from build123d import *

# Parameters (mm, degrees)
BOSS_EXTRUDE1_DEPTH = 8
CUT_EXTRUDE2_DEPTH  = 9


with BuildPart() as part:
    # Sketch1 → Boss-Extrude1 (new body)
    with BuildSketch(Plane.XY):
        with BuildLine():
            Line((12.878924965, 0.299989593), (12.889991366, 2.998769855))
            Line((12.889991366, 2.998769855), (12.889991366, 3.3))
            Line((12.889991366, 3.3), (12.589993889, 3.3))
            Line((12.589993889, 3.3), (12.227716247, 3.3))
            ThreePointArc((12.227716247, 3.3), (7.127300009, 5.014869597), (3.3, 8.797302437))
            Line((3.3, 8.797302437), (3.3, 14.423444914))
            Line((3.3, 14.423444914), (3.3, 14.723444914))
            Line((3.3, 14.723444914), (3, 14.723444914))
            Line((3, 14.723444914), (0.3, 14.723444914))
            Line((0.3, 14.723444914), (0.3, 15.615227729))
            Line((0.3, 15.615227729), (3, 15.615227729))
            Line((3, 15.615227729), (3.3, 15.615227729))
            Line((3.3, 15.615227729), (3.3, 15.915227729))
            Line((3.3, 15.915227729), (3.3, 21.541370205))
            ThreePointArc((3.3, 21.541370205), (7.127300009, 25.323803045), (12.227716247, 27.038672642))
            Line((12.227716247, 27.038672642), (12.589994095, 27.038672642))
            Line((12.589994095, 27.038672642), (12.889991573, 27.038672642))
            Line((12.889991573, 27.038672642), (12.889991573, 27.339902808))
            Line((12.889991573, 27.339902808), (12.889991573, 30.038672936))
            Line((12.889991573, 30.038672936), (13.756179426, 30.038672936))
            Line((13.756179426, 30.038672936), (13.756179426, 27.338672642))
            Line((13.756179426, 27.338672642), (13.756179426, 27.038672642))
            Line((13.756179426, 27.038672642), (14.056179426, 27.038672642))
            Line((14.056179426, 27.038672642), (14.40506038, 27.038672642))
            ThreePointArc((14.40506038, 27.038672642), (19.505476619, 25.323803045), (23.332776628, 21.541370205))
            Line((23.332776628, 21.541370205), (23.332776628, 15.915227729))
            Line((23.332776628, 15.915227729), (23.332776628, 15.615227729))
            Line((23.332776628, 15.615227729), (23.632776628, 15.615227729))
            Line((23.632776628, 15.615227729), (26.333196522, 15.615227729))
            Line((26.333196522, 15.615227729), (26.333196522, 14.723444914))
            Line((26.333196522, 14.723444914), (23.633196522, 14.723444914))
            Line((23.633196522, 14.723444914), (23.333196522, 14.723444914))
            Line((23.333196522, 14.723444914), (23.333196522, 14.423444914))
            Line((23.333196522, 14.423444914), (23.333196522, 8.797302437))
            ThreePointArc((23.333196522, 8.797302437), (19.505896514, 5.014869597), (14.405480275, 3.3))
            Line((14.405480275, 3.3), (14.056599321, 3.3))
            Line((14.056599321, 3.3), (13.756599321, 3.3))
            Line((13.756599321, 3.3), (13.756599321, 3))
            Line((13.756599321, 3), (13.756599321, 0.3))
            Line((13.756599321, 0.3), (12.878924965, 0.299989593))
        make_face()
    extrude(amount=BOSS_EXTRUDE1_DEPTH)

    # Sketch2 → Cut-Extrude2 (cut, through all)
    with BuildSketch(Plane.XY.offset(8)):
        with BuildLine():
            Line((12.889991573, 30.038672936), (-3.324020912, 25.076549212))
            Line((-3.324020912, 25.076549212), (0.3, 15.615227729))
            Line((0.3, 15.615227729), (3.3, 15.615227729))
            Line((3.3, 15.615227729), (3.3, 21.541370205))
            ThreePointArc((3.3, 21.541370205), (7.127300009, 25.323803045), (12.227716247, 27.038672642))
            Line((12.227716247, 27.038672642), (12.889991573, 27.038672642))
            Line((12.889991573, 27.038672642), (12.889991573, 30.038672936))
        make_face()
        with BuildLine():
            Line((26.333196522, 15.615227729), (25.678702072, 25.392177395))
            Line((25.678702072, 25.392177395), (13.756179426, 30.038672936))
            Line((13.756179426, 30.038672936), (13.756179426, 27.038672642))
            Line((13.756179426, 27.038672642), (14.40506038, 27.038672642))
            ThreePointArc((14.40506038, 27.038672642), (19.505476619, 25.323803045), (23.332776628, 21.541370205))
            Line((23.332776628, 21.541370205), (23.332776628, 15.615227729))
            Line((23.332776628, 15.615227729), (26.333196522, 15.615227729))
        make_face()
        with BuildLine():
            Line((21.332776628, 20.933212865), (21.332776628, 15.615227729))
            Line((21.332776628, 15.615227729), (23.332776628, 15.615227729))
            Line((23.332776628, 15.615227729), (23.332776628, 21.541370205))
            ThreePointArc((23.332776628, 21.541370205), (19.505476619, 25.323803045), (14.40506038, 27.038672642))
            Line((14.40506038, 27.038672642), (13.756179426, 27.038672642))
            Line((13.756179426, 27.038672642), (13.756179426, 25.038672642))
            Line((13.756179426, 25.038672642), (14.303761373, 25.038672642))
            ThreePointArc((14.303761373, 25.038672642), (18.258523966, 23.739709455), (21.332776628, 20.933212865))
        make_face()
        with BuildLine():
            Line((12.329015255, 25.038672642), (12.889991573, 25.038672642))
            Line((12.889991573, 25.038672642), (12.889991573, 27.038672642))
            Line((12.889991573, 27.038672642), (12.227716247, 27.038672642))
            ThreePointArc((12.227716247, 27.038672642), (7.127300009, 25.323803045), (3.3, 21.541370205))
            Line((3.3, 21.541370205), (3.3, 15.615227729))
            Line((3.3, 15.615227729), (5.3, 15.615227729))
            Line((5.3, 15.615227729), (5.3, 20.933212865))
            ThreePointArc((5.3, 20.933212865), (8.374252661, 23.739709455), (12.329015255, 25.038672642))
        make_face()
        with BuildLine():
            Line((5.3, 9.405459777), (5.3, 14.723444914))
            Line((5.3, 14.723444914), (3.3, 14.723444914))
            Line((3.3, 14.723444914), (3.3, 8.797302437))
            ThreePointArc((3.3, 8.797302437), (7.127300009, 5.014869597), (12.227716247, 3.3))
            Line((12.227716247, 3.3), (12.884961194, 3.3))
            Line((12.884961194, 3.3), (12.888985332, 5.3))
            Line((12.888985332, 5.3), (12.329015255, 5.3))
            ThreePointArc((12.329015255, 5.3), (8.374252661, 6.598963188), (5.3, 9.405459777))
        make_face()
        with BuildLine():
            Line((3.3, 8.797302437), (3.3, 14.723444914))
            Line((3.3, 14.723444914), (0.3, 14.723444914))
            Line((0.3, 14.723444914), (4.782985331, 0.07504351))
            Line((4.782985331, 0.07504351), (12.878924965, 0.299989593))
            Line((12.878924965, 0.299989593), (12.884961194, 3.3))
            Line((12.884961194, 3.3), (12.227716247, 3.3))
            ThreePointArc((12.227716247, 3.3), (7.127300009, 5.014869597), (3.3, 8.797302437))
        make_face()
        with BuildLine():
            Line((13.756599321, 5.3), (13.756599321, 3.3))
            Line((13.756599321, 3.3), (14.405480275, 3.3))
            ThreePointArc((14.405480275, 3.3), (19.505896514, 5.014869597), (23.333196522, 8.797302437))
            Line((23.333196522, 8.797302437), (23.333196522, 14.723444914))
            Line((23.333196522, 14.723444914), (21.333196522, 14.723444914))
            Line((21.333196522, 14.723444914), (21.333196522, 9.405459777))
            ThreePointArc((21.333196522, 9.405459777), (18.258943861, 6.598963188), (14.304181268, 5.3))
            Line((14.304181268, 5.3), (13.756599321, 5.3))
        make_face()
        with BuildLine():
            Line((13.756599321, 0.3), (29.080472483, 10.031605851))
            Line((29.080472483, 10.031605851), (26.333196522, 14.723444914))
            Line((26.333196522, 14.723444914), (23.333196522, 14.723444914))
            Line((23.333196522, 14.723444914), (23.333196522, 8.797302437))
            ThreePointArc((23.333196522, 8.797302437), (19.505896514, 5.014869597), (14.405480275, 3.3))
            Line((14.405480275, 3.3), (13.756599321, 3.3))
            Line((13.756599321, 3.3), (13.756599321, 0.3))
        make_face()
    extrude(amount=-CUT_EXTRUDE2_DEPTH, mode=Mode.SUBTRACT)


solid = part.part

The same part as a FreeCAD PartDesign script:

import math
import FreeCAD as App
import Part
import Sketcher

doc = App.newDocument("Part")
body = doc.addObject("PartDesign::Body", "Body")

sketch1 = doc.addObject("Sketcher::SketchObject", "Sketch")
body.addObject(sketch1)
sketch1.AttachmentSupport = (doc.XY_Plane, [""])
sketch1.MapMode = "FlatFace"
sketch1.addGeometry([
    Part.LineSegment(App.Vector(12.89, 3, 0), App.Vector(12.88, 0.3, 0)),
    Part.LineSegment(App.Vector(12.88, 0.3, 0), App.Vector(13.76, 0.3, 0)),
    Part.LineSegment(App.Vector(13.76, 0.3, 0), App.Vector(13.76, 3.3, 0)),
    Part.LineSegment(App.Vector(13.76, 3.3, 0), App.Vector(14.41, 3.3, 0)),
    Part.ArcOfCircle(Part.Circle(App.Vector(13.25, 15.17, 0), App.Vector(0, 0, 1), 11.92), math.radians(-84), math.radians(-32)),
    Part.LineSegment(App.Vector(23.33, 8.8, 0), App.Vector(23.33, 14.72, 0)),
    Part.LineSegment(App.Vector(23.33, 14.72, 0), App.Vector(26.33, 14.72, 0)),
    Part.LineSegment(App.Vector(26.33, 14.72, 0), App.Vector(26.33, 15.62, 0)),
    Part.LineSegment(App.Vector(26.33, 15.62, 0), App.Vector(23.33, 15.62, 0)),
    Part.LineSegment(App.Vector(23.33, 15.62, 0), App.Vector(23.33, 21.54, 0)),
    Part.ArcOfCircle(Part.Circle(App.Vector(13.25, 15.17, 0), App.Vector(0, 0, 1), 11.92), math.radians(32), math.radians(84)),
    Part.LineSegment(App.Vector(14.41, 27.04, 0), App.Vector(13.76, 27.04, 0)),
    Part.LineSegment(App.Vector(13.76, 27.04, 0), App.Vector(13.76, 30.04, 0)),
    Part.LineSegment(App.Vector(13.76, 30.04, 0), App.Vector(12.89, 30.04, 0)),
    Part.LineSegment(App.Vector(12.89, 30.04, 0), App.Vector(12.89, 27.04, 0)),
    Part.LineSegment(App.Vector(12.89, 27.04, 0), App.Vector(12.23, 27.04, 0)),
    Part.ArcOfCircle(Part.Circle(App.Vector(13.38, 15.17, 0), App.Vector(0, 0, 1), 11.92), math.radians(96), math.radians(148)),
    Part.LineSegment(App.Vector(3.3, 21.54, 0), App.Vector(3.3, 15.62, 0)),
    Part.LineSegment(App.Vector(3.3, 15.62, 0), App.Vector(0.3, 15.62, 0)),
    Part.LineSegment(App.Vector(0.3, 15.62, 0), App.Vector(0.3, 14.72, 0)),
    Part.LineSegment(App.Vector(0.3, 14.72, 0), App.Vector(3.3, 14.72, 0)),
    Part.LineSegment(App.Vector(3.3, 14.72, 0), App.Vector(3.3, 8.8, 0)),
    Part.ArcOfCircle(Part.Circle(App.Vector(13.38, 15.17, 0), App.Vector(0, 0, 1), 11.92), math.radians(-148), math.radians(-96)),
    Part.LineSegment(App.Vector(12.23, 3.3, 0), App.Vector(12.89, 3.3, 0)),
    Part.LineSegment(App.Vector(12.89, 3.3, 0), App.Vector(12.89, 3, 0)),
], False)
sketch1.addConstraint([
    Sketcher.Constraint("Coincident", 0, 2, 1, 1),
    Sketcher.Constraint("Coincident", 1, 2, 2, 1),
    Sketcher.Constraint("Coincident", 2, 2, 3, 1),
    Sketcher.Constraint("Coincident", 3, 2, 4, 1),
    Sketcher.Constraint("Coincident", 4, 2, 5, 1),
    Sketcher.Constraint("Coincident", 5, 2, 6, 1),
    Sketcher.Constraint("Coincident", 6, 2, 7, 1),
    Sketcher.Constraint("Coincident", 7, 2, 8, 1),
    Sketcher.Constraint("Coincident", 8, 2, 9, 1),
    Sketcher.Constraint("Coincident", 9, 2, 10, 1),
    Sketcher.Constraint("Coincident", 10, 2, 11, 1),
    Sketcher.Constraint("Coincident", 11, 2, 12, 1),
    Sketcher.Constraint("Coincident", 12, 2, 13, 1),
    Sketcher.Constraint("Coincident", 13, 2, 14, 1),
    Sketcher.Constraint("Coincident", 14, 2, 15, 1),
    Sketcher.Constraint("Coincident", 15, 2, 16, 1),
    Sketcher.Constraint("Coincident", 16, 2, 17, 1),
    Sketcher.Constraint("Coincident", 17, 2, 18, 1),
    Sketcher.Constraint("Coincident", 18, 2, 19, 1),
    Sketcher.Constraint("Coincident", 19, 2, 20, 1),
    Sketcher.Constraint("Coincident", 20, 2, 21, 1),
    Sketcher.Constraint("Coincident", 21, 2, 22, 1),
    Sketcher.Constraint("Coincident", 22, 2, 23, 1),
    Sketcher.Constraint("Coincident", 23, 2, 24, 1),
    Sketcher.Constraint("Coincident", 24, 2, 0, 1),
    Sketcher.Constraint("Vertical", 2),
    Sketcher.Constraint("Horizontal", 3),
    Sketcher.Constraint("Vertical", 5),
    Sketcher.Constraint("Horizontal", 6),
    Sketcher.Constraint("Vertical", 7),
    Sketcher.Constraint("Horizontal", 8),
    Sketcher.Constraint("Vertical", 9),
    Sketcher.Constraint("Horizontal", 11),
    Sketcher.Constraint("Vertical", 12),
    Sketcher.Constraint("Horizontal", 13),
    Sketcher.Constraint("Vertical", 14),
    Sketcher.Constraint("Horizontal", 15),
    Sketcher.Constraint("Vertical", 17),
    Sketcher.Constraint("Horizontal", 18),
    Sketcher.Constraint("Vertical", 19),
    Sketcher.Constraint("Horizontal", 20),
    Sketcher.Constraint("Vertical", 21),
    Sketcher.Constraint("Horizontal", 23),
    Sketcher.Constraint("Vertical", 24),
    Sketcher.Constraint("Equal", 4, 10),
    Sketcher.Constraint("Equal", 10, 16),
    Sketcher.Constraint("Equal", 16, 22),
    Sketcher.Constraint("Horizontal", 10, 3, 16, 3),
    Sketcher.Constraint("Horizontal", 4, 3, 22, 3),
    Sketcher.Constraint("Horizontal", 11, 2, 14, 2),
    Sketcher.Constraint("Horizontal", 9, 2, 16, 2),
    Sketcher.Constraint("Horizontal", 8, 2, 17, 2),
    Sketcher.Constraint("Horizontal", 6, 2, 19, 2),
    Sketcher.Constraint("Horizontal", 4, 2, 21, 2),
    Sketcher.Constraint("Horizontal", 3, 2, 22, 2),
    Sketcher.Constraint("Vertical", 16, 3, 22, 3),
    Sketcher.Constraint("Vertical", 17, 2, 20, 2),
    Sketcher.Constraint("Vertical", 15, 2, 22, 2),
    Sketcher.Constraint("Vertical", 14, 2, 23, 2),
    Sketcher.Constraint("Equal", 3, 11),
    Sketcher.Constraint("Equal", 6, 18),
    Sketcher.Constraint("Equal", 20, 2),
    Sketcher.Constraint("Equal", 5, 9),
    Sketcher.Constraint("Equal", 2, 12),
    Sketcher.Constraint("DistanceX", 6, 1, 6, 2, 3.0),
    Sketcher.Constraint("Radius", 4, 11.924999),
    Sketcher.Constraint("DistanceY", -1, 1, 1, 2, 0.3),
    Sketcher.Constraint("DistanceX", -1, 1, 16, 2, 3.3),
    Sketcher.Constraint("DistanceX", 3, 1, 3, 2, 0.648881),
    Sketcher.Constraint("DistanceX", 8, 2, 8, 1, 3.00042),
    Sketcher.Constraint("DistanceY", 24, 2, 24, 1, 0.30123),
    Sketcher.Constraint("DistanceX", -1, 1, 1, 2, 13.756599),
    Sketcher.Constraint("DistanceX", 13, 2, 13, 1, 0.866188),
    Sketcher.Constraint("DistanceX", 15, 2, 15, 1, 0.662275),
    Sketcher.Constraint("DistanceY", 5, 1, 5, 2, 5.926142),
    Sketcher.Constraint("DistanceY", 7, 1, 7, 2, 0.891783),
    Sketcher.Constraint("DistanceY", -1, 1, 0, 2, 0.29999),
    Sketcher.Constraint("DistanceY", -1, 1, 9, 2, 21.54137),
    Sketcher.Constraint("DistanceX", 0, 2, 4, 3, 0.374369),
])
pad1 = doc.addObject("PartDesign::Pad", "Pad")
body.addObject(pad1)
pad1.Profile = sketch1
pad1.Length = 8

sketch2 = doc.addObject("Sketcher::SketchObject", "Sketch001")
body.addObject(sketch2)
sketch2.AttachmentSupport = (doc.XY_Plane, [""])
sketch2.MapMode = "FlatFace"
sketch2.AttachmentOffset = App.Placement(App.Vector(0, 0, 8), App.Rotation())
sketch2.addGeometry([
    Part.LineSegment(App.Vector(12.9, 30, 0), App.Vector(-3.3, 25.1, 0)),
    Part.LineSegment(App.Vector(-3.3, 25.1, 0), App.Vector(0.3, 15.6, 0)),
    Part.LineSegment(App.Vector(0.3, 15.6, 0), App.Vector(5.3, 15.6, 0)),
    Part.LineSegment(App.Vector(5.3, 15.6, 0), App.Vector(5.3, 20.9, 0)),
    Part.ArcOfCircle(Part.Circle(App.Vector(13.4, 15.2, 0), App.Vector(0, 0, 1), 9.9), math.radians(96), math.radians(144)),
    Part.LineSegment(App.Vector(12.3, 25, 0), App.Vector(12.9, 25, 0)),
    Part.LineSegment(App.Vector(12.9, 25, 0), App.Vector(12.9, 30, 0)),
    Part.LineSegment(App.Vector(26.3, 15.6, 0), App.Vector(25.7, 25.4, 0)),
    Part.LineSegment(App.Vector(25.7, 25.4, 0), App.Vector(13.8, 30, 0)),
    Part.LineSegment(App.Vector(13.8, 30, 0), App.Vector(13.8, 25, 0)),
    Part.LineSegment(App.Vector(13.8, 25, 0), App.Vector(14.3, 25, 0)),
    Part.ArcOfCircle(Part.Circle(App.Vector(13.3, 15.2, 0), App.Vector(0, 0, 1), 9.9), math.radians(36), math.radians(84)),
    Part.LineSegment(App.Vector(21.3, 20.9, 0), App.Vector(21.3, 15.6, 0)),
    Part.LineSegment(App.Vector(21.3, 15.6, 0), App.Vector(26.3, 15.6, 0)),
    Part.LineSegment(App.Vector(5.3, 9.4, 0), App.Vector(5.3, 14.7, 0)),
    Part.LineSegment(App.Vector(5.3, 14.7, 0), App.Vector(0.3, 14.7, 0)),
    Part.LineSegment(App.Vector(0.3, 14.7, 0), App.Vector(4.8, 0.1, 0)),
    Part.LineSegment(App.Vector(4.8, 0.1, 0), App.Vector(12.9, 0.3, 0)),
    Part.LineSegment(App.Vector(12.9, 0.3, 0), App.Vector(12.9, 3.3, 0)),
    Part.LineSegment(App.Vector(12.9, 3.3, 0), App.Vector(12.9, 5.3, 0)),
    Part.LineSegment(App.Vector(12.9, 5.3, 0), App.Vector(12.3, 5.3, 0)),
    Part.ArcOfCircle(Part.Circle(App.Vector(13.4, 15.2, 0), App.Vector(0, 0, 1), 9.9), math.radians(-144), math.radians(-96)),
    Part.LineSegment(App.Vector(13.8, 5.3, 0), App.Vector(13.8, 0.3, 0)),
    Part.LineSegment(App.Vector(13.8, 0.3, 0), App.Vector(29.1, 10, 0)),
    Part.LineSegment(App.Vector(29.1, 10, 0), App.Vector(26.3, 14.7, 0)),
    Part.LineSegment(App.Vector(26.3, 14.7, 0), App.Vector(21.3, 14.7, 0)),
    Part.LineSegment(App.Vector(21.3, 14.7, 0), App.Vector(21.3, 9.4, 0)),
    Part.ArcOfCircle(Part.Circle(App.Vector(13.3, 15.2, 0), App.Vector(0, 0, 1), 9.9), math.radians(-84), math.radians(-36)),
    Part.LineSegment(App.Vector(14.3, 5.3, 0), App.Vector(13.8, 5.3, 0)),
], False)
sketch2.addConstraint([
    Sketcher.Constraint("Coincident", 0, 2, 1, 1),
    Sketcher.Constraint("Coincident", 1, 2, 2, 1),
    Sketcher.Constraint("Coincident", 2, 2, 3, 1),
    Sketcher.Constraint("Coincident", 3, 2, 4, 2),
    Sketcher.Constraint("Coincident", 4, 1, 5, 1),
    Sketcher.Constraint("Coincident", 5, 2, 6, 1),
    Sketcher.Constraint("Coincident", 6, 2, 0, 1),
    Sketcher.Constraint("Coincident", 7, 2, 8, 1),
    Sketcher.Constraint("Coincident", 8, 2, 9, 1),
    Sketcher.Constraint("Coincident", 9, 2, 10, 1),
    Sketcher.Constraint("Coincident", 10, 2, 11, 2),
    Sketcher.Constraint("Coincident", 11, 1, 12, 1),
    Sketcher.Constraint("Coincident", 12, 2, 13, 1),
    Sketcher.Constraint("Coincident", 13, 2, 7, 1),
    Sketcher.Constraint("Coincident", 14, 2, 15, 1),
    Sketcher.Constraint("Coincident", 15, 2, 16, 1),
    Sketcher.Constraint("Coincident", 16, 2, 17, 1),
    Sketcher.Constraint("Coincident", 17, 2, 18, 1),
    Sketcher.Constraint("Coincident", 18, 2, 19, 1),
    Sketcher.Constraint("Coincident", 19, 2, 20, 1),
    Sketcher.Constraint("Coincident", 20, 2, 21, 2),
    Sketcher.Constraint("Coincident", 21, 1, 14, 1),
    Sketcher.Constraint("Coincident", 22, 2, 23, 1),
    Sketcher.Constraint("Coincident", 23, 2, 24, 1),
    Sketcher.Constraint("Coincident", 24, 2, 25, 1),
    Sketcher.Constraint("Coincident", 25, 2, 26, 1),
    Sketcher.Constraint("Coincident", 26, 2, 27, 2),
    Sketcher.Constraint("Coincident", 27, 1, 28, 1),
    Sketcher.Constraint("Coincident", 28, 2, 22, 1),
    Sketcher.Constraint("Horizontal", 2),
    Sketcher.Constraint("Vertical", 3),
    Sketcher.Constraint("Horizontal", 5),
    Sketcher.Constraint("Vertical", 6),
    Sketcher.Constraint("Vertical", 9),
    Sketcher.Constraint("Horizontal", 10),
    Sketcher.Constraint("Vertical", 12),
    Sketcher.Constraint("Horizontal", 13),
    Sketcher.Constraint("Vertical", 14),
    Sketcher.Constraint("Horizontal", 15),
    Sketcher.Constraint("Horizontal", 20),
    Sketcher.Constraint("Vertical", 22),
    Sketcher.Constraint("Horizontal", 25),
    Sketcher.Constraint("Vertical", 26),
    Sketcher.Constraint("Horizontal", 28),
    Sketcher.Constraint("Equal", 4, 11),
    Sketcher.Constraint("Equal", 11, 21),
    Sketcher.Constraint("Equal", 21, 27),
    Sketcher.Constraint("Perpendicular", 0, 16),
    Sketcher.Constraint("Parallel", 18, 19),
    Sketcher.Constraint("Horizontal", 4, 3, 11, 3),
    Sketcher.Constraint("Horizontal", 21, 3, 27, 3),
    Sketcher.Constraint("Horizontal", 6, 2, 8, 2),
    Sketcher.Constraint("Horizontal", 5, 2, 9, 2),
    Sketcher.Constraint("Horizontal", 3, 2, 11, 1),
    Sketcher.Constraint("Horizontal", 2, 2, 12, 2),
    Sketcher.Constraint("Horizontal", 15, 2, 24, 2),
    Sketcher.Constraint("Horizontal", 21, 1, 26, 2),
    Sketcher.Constraint("Horizontal", 20, 2, 27, 1),
    Sketcher.Constraint("Vertical", 4, 3, 21, 3),
    Sketcher.Constraint("Vertical", 3, 2, 14, 2),
    Sketcher.Constraint("Vertical", 1, 2, 15, 2),
    Sketcher.Constraint("Vertical", 4, 1, 20, 2),
    Sketcher.Constraint("Vertical", 13, 2, 24, 2),
    Sketcher.Constraint("Equal", 15, 25),
    Sketcher.Constraint("Equal", 10, 28),
    Sketcher.Constraint("Equal", 25, 6),
    Sketcher.Constraint("Equal", 12, 14),
    Sketcher.Constraint("Equal", 9, 22),
    Sketcher.Constraint("DistanceX", 2, 1, 2, 2, 5.0),
    Sketcher.Constraint("Radius", 4, 9.924999),
    Sketcher.Constraint("DistanceY", 18, 2, 19, 2, 2.0),
    Sketcher.Constraint("DistanceX", -1, 1, 1, 2, 0.3),
    Sketcher.Constraint("DistanceY", -1, 1, 18, 2, 3.3),
    Sketcher.Constraint("DistanceX", 16, 2, 19, 2, 8.106),
    Sketcher.Constraint("DistanceX", 10, 1, 10, 2, 0.547582),
    Sketcher.Constraint("DistanceX", 13, 1, 13, 2, 5.00042),
    Sketcher.Constraint("DistanceX", 20, 2, 20, 1, 0.55997),
    Sketcher.Constraint("DistanceX", -1, 1, 22, 2, 13.756599),
    Sketcher.Constraint("DistanceX", 4, 3, 7, 2, 12.2988),
    Sketcher.Constraint("DistanceY", 16, 2, 14, 2, 14.648401),
    Sketcher.Constraint("DistanceY", 23, 2, 21, 3, 5.137601),
    Sketcher.Constraint("Distance", 1, 10.13164),
    Sketcher.Constraint("Distance", 7, 9.798832),
    Sketcher.Constraint("Distance", 23, 18.15283),
    Sketcher.Constraint("Distance", 24, 5.436992),
    Sketcher.Constraint("DistanceX", 5, 1, 5, 2, 0.560976),
    Sketcher.Constraint("DistanceY", 3, 1, 3, 2, 5.317985),
    Sketcher.Constraint("DistanceX", 0, 2, -1, 1, 3.324021),
    Sketcher.Constraint("DistanceY", -1, 1, 0, 2, 25.076549),
    Sketcher.Constraint("DistanceY", -1, 1, 17, 2, 0.29999),
    Sketcher.Constraint("DistanceX", -1, 1, 18, 2, 12.884961),
])
pocket1 = doc.addObject("PartDesign::Pocket", "Pocket")
body.addObject(pocket1)
pocket1.Profile = sketch2
pocket1.Type = "ThroughAll"

doc.recompute()
